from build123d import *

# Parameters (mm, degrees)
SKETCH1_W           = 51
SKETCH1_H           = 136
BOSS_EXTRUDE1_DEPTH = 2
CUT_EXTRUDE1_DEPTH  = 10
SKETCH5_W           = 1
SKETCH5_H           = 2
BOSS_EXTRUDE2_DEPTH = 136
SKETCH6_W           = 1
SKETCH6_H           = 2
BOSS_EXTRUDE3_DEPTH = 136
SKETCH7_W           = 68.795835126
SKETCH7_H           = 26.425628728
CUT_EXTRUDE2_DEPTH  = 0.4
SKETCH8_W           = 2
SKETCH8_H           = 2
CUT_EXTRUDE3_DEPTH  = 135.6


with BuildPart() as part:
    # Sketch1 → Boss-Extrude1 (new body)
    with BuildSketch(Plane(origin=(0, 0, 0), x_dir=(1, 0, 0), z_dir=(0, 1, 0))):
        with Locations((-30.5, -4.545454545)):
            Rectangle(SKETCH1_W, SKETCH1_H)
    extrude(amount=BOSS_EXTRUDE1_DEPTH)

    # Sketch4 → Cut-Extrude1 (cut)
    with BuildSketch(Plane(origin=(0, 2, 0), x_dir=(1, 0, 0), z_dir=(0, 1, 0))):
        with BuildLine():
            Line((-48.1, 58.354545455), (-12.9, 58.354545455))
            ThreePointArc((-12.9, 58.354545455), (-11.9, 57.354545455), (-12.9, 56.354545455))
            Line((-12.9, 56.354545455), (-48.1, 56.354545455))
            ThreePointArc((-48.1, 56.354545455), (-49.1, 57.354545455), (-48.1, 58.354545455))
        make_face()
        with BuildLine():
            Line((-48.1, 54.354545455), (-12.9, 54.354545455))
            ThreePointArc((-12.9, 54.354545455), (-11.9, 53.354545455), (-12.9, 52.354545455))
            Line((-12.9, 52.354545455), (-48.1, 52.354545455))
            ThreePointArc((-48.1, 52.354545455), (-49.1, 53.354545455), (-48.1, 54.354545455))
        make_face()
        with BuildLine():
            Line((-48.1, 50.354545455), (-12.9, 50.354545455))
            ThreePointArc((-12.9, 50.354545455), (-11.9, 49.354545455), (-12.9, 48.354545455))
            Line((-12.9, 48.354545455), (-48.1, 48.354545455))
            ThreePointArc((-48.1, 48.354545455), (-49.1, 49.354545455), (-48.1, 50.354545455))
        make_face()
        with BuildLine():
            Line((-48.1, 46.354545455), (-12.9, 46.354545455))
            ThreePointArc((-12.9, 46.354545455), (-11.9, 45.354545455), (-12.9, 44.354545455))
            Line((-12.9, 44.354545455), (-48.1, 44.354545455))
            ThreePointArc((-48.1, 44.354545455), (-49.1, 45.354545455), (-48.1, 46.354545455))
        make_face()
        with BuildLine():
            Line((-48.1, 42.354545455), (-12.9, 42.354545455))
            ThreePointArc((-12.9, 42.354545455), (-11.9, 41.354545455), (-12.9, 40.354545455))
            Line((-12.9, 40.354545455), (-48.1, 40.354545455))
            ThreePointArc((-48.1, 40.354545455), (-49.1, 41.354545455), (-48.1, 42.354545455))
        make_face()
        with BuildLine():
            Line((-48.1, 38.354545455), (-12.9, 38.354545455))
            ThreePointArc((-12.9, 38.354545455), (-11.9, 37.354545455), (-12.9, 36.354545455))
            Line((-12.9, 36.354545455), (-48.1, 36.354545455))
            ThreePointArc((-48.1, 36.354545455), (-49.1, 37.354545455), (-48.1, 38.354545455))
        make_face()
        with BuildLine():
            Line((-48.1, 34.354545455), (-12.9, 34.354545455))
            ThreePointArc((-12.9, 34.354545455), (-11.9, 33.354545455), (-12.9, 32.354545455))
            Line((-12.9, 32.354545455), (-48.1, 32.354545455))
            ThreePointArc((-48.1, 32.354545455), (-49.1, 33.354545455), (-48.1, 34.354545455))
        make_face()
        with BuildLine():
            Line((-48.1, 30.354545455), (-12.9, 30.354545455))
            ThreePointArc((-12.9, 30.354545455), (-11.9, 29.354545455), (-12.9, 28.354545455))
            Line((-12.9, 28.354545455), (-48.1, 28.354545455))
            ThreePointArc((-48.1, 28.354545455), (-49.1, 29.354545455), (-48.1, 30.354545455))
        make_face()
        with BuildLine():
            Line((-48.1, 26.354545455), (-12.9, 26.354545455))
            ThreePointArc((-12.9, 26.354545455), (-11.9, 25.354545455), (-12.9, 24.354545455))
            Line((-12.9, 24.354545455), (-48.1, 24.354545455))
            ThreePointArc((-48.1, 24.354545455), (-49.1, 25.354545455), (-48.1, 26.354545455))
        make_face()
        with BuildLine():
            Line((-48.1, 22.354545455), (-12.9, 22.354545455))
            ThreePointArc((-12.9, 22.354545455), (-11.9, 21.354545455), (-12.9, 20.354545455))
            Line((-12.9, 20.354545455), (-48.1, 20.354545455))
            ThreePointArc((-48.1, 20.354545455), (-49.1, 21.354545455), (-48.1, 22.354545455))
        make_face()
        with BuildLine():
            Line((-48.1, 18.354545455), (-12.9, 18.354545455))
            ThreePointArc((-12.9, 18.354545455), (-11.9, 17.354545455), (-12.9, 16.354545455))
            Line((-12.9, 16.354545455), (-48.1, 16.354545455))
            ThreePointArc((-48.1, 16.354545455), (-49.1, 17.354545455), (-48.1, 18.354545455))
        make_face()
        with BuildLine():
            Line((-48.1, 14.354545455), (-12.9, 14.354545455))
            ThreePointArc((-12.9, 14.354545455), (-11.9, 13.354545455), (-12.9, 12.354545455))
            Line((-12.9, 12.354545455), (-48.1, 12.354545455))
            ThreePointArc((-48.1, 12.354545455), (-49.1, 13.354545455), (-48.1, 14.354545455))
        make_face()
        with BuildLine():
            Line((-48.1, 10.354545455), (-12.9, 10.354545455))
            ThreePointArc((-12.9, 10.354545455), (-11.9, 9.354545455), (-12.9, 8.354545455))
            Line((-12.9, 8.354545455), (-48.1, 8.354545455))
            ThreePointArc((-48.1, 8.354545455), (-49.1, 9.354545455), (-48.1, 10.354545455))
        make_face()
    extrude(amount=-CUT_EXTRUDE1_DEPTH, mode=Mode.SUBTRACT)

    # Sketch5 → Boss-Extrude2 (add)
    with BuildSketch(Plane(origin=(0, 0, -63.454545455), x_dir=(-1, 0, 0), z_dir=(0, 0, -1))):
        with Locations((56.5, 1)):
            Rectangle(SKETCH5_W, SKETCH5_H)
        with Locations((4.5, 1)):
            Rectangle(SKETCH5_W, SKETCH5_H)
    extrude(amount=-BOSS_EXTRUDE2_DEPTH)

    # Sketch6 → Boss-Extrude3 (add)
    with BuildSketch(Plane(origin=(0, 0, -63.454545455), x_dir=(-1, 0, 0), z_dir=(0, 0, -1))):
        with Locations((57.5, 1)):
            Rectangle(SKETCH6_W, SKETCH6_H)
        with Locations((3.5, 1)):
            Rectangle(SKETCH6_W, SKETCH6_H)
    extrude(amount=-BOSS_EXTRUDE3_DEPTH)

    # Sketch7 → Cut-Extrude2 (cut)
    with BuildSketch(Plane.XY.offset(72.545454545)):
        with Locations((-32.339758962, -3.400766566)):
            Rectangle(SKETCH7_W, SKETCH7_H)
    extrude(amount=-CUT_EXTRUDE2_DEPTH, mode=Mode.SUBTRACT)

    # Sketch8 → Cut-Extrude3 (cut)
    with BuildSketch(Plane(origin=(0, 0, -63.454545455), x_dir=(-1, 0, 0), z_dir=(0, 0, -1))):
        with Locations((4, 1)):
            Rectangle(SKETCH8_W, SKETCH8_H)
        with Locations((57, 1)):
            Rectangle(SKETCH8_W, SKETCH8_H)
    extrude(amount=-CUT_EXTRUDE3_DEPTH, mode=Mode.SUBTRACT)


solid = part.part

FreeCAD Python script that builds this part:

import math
import FreeCAD as App
import Part
import Sketcher
from FreeCAD import Vector
Q = App.Units.Quantity


def add_polygon(sketch, points):
    """Adds a closed chain of lines whose ends are joined by coincident constraints."""
    first, n = sketch.GeometryCount, len(points)
    for a, b in zip(points, points[1:] + points[:1]):
        sketch.addGeometry(Part.LineSegment(App.Vector(*a, 0), App.Vector(*b, 0)), False)
    for i in range(n):
        sketch.addConstraint(Sketcher.Constraint("Coincident", first + i, 2, first + (i + 1) % n, 1))

doc = App.newDocument("Part")
body = doc.addObject("PartDesign::Body", "Body")

# Sketch on XZ plane
sketch1 = body.newObject("Sketcher::SketchObject", "Sketch")
sketch1.AttachmentSupport = (doc.getObject("XZ_Plane"), [""])
sketch1.MapMode = "FlatFace"
add_polygon(sketch1, [(-56, -63.454545), (-56, 72.545455), (-5, 72.545455), (-5, -63.454545)])  # lines 0-3
sketch1.addConstraint([
    Sketcher.Constraint("Vertical", 0),
    Sketcher.Constraint("Horizontal", 1),
    Sketcher.Constraint("Vertical", 2),
    Sketcher.Constraint("Horizontal", 3),
    Sketcher.Constraint("DistanceX", 1, 1, 1, 2, Q("51 mm")),
    Sketcher.Constraint("DistanceY", 0, 1, 0, 2, Q("136 mm")),
    Sketcher.Constraint("DistanceX", 0, 2, -1, 1, Q("56 mm")),
    Sketcher.Constraint("DistanceY", -1, 1, 0, 2, Q("72.545455 mm")),
])
pad1 = body.newObject("PartDesign::Pad", "Pad")
pad1.Profile = sketch1
pad1.Length = 2
pad1.Reversed = True

# Sketch on XZ plane
sketch2 = body.newObject("Sketcher::SketchObject", "Sketch001")
sketch2.AttachmentSupport = (doc.getObject("XZ_Plane"), [""])
sketch2.MapMode = "FlatFace"
sketch2.AttachmentOffset = App.Placement(Vector(0, 0, -2), App.Rotation())
sketch2.addGeometry([
    Part.LineSegment(Vector(-12.9, -58.354545, 0), Vector(-48.1, -58.354545, 0)),  # 0
    Part.ArcOfCircle(Part.Circle(Vector(-48.1, -57.354545, 0), Vector(0, 0, 1), 1), math.radians(90), math.radians(270)),  # 1
    Part.LineSegment(Vector(-48.1, -56.354545, 0), Vector(-12.9, -56.354545, 0)),  # 2
    Part.ArcOfCircle(Part.Circle(Vector(-12.9, -57.354545, 0), Vector(0, 0, 1), 1), math.radians(-90), math.radians(90)),  # 3
    Part.LineSegment(Vector(-12.9, -54.354545, 0), Vector(-48.1, -54.354545, 0)),  # 4
    Part.ArcOfCircle(Part.Circle(Vector(-48.1, -53.354545, 0), Vector(0, 0, 1), 1), math.radians(90), math.radians(270)),  # 5
    Part.LineSegment(Vector(-48.1, -52.354545, 0), Vector(-12.9, -52.354545, 0)),  # 6
    Part.ArcOfCircle(Part.Circle(Vector(-12.9, -53.354545, 0), Vector(0, 0, 1), 1), math.radians(-90), math.radians(90)),  # 7
    Part.LineSegment(Vector(-12.9, -50.354545, 0), Vector(-48.1, -50.354545, 0)),  # 8
    Part.ArcOfCircle(Part.Circle(Vector(-48.1, -49.354545, 0), Vector(0, 0, 1), 1), math.radians(90), math.radians(270)),  # 9
    Part.LineSegment(Vector(-48.1, -48.354545, 0), Vector(-12.9, -48.354545, 0)),  # 10
    Part.ArcOfCircle(Part.Circle(Vector(-12.9, -49.354545, 0), Vector(0, 0, 1), 1), math.radians(-90), math.radians(90)),  # 11
    Part.LineSegment(Vector(-12.9, -46.354545, 0), Vector(-48.1, -46.354545, 0)),  # 12
    Part.ArcOfCircle(Part.Circle(Vector(-48.1, -45.354545, 0), Vector(0, 0, 1), 1), math.radians(90), math.radians(270)),  # 13
    Part.LineSegment(Vector(-48.1, -44.354545, 0), Vector(-12.9, -44.354545, 0)),  # 14
    Part.ArcOfCircle(Part.Circle(Vector(-12.9, -45.354545, 0), Vector(0, 0, 1), 1), math.radians(-90), math.radians(90)),  # 15
    Part.LineSegment(Vector(-12.9, -42.354545, 0), Vector(-48.1, -42.354545, 0)),  # 16
    Part.ArcOfCircle(Part.Circle(Vector(-48.1, -41.354545, 0), Vector(0, 0, 1), 1), math.radians(90), math.radians(270)),  # 17
    Part.LineSegment(Vector(-48.1, -40.354545, 0), Vector(-12.9, -40.354545, 0)),  # 18
    Part.ArcOfCircle(Part.Circle(Vector(-12.9, -41.354545, 0), Vector(0, 0, 1), 1), math.radians(-90), math.radians(90)),  # 19
    Part.LineSegment(Vector(-12.9, -38.354545, 0), Vector(-48.1, -38.354545, 0)),  # 20
    Part.ArcOfCircle(Part.Circle(Vector(-48.1, -37.354545, 0), Vector(0, 0, 1), 1), math.radians(90), math.radians(270)),  # 21
    Part.LineSegment(Vector(-48.1, -36.354545, 0), Vector(-12.9, -36.354545, 0)),  # 22
    Part.ArcOfCircle(Part.Circle(Vector(-12.9, -37.354545, 0), Vector(0, 0, 1), 1), math.radians(-90), math.radians(90)),  # 23
    Part.LineSegment(Vector(-12.9, -34.354545, 0), Vector(-48.1, -34.354545, 0)),  # 24
    Part.ArcOfCircle(Part.Circle(Vector(-48.1, -33.354545, 0), Vector(0, 0, 1), 1), math.radians(90), math.radians(270)),  # 25
    Part.LineSegment(Vector(-48.1, -32.354545, 0), Vector(-12.9, -32.354545, 0)),  # 26
    Part.ArcOfCircle(Part.Circle(Vector(-12.9, -33.354545, 0), Vector(0, 0, 1), 1), math.radians(-90), math.radians(90)),  # 27
    Part.LineSegment(Vector(-12.9, -30.354545, 0), Vector(-48.1, -30.354545, 0)),  # 28
    Part.ArcOfCircle(Part.Circle(Vector(-48.1, -29.354545, 0), Vector(0, 0, 1), 1), math.radians(90), math.radians(270)),  # 29
    Part.LineSegment(Vector(-48.1, -28.354545, 0), Vector(-12.9, -28.354545, 0)),  # 30
    Part.ArcOfCircle(Part.Circle(Vector(-12.9, -29.354545, 0), Vector(0, 0, 1), 1), math.radians(-90), math.radians(90)),  # 31
    Part.LineSegment(Vector(-12.9, -26.354545, 0), Vector(-48.1, -26.354545, 0)),  # 32
    Part.ArcOfCircle(Part.Circle(Vector(-48.1, -25.354545, 0), Vector(0, 0, 1), 1), math.radians(90), math.radians(270)),  # 33
    Part.LineSegment(Vector(-48.1, -24.354545, 0), Vector(-12.9, -24.354545, 0)),  # 34
    Part.ArcOfCircle(Part.Circle(Vector(-12.9, -25.354545, 0), Vector(0, 0, 1), 1), math.radians(-90), math.radians(90)),  # 35
    Part.LineSegment(Vector(-12.9, -22.354545, 0), Vector(-48.1, -22.354545, 0)),  # 36
    Part.ArcOfCircle(Part.Circle(Vector(-48.1, -21.354545, 0), Vector(0, 0, 1), 1), math.radians(90), math.radians(270)),  # 37
    Part.LineSegment(Vector(-48.1, -20.354545, 0), Vector(-12.9, -20.354545, 0)),  # 38
    Part.ArcOfCircle(Part.Circle(Vector(-12.9, -21.354545, 0), Vector(0, 0, 1), 1), math.radians(-90), math.radians(90)),  # 39
    Part.LineSegment(Vector(-12.9, -18.354545, 0), Vector(-48.1, -18.354545, 0)),  # 40
    Part.ArcOfCircle(Part.Circle(Vector(-48.1, -17.354545, 0), Vector(0, 0, 1), 1), math.radians(90), math.radians(270)),  # 41
    Part.LineSegment(Vector(-48.1, -16.354545, 0), Vector(-12.9, -16.354545, 0)),  # 42
    Part.ArcOfCircle(Part.Circle(Vector(-12.9, -17.354545, 0), Vector(0, 0, 1), 1), math.radians(-90), math.radians(90)),  # 43
    Part.LineSegment(Vector(-12.9, -14.354545, 0), Vector(-48.1, -14.354545, 0)),  # 44
    Part.ArcOfCircle(Part.Circle(Vector(-48.1, -13.354545, 0), Vector(0, 0, 1), 1), math.radians(90), math.radians(270)),  # 45
    Part.LineSegment(Vector(-48.1, -12.354545, 0), Vector(-12.9, -12.354545, 0)),  # 46
    Part.ArcOfCircle(Part.Circle(Vector(-12.9, -13.354545, 0), Vector(0, 0, 1), 1), math.radians(-90), math.radians(90)),  # 47
    Part.LineSegment(Vector(-12.9, -10.354545, 0), Vector(-48.1, -10.354545, 0)),  # 48
    Part.ArcOfCircle(Part.Circle(Vector(-48.1, -9.354545, 0), Vector(0, 0, 1), 1), math.radians(90), math.radians(270)),  # 49
    Part.LineSegment(Vector(-48.1, -8.354545, 0), Vector(-12.9, -8.354545, 0)),  # 50
    Part.ArcOfCircle(Part.Circle(Vector(-12.9, -9.354545, 0), Vector(0, 0, 1), 1), math.radians(-90), math.radians(90)),  # 51
], False)
sketch2.addConstraint([
    Sketcher.Constraint("Tangent", 0, 2, 1, 2),
    Sketcher.Constraint("Tangent", 1, 1, 2, 1),
    Sketcher.Constraint("Tangent", 2, 2, 3, 2),
    Sketcher.Constraint("Tangent", 3, 1, 0, 1),
    Sketcher.Constraint("Tangent", 4, 2, 5, 2),
    Sketcher.Constraint("Tangent", 5, 1, 6, 1),
    Sketcher.Constraint("Tangent", 6, 2, 7, 2),
    Sketcher.Constraint("Tangent", 7, 1, 4, 1),
    Sketcher.Constraint("Tangent", 8, 2, 9, 2),
    Sketcher.Constraint("Tangent", 9, 1, 10, 1),
    Sketcher.Constraint("Tangent", 10, 2, 11, 2),
    Sketcher.Constraint("Tangent", 11, 1, 8, 1),
    Sketcher.Constraint("Tangent", 12, 2, 13, 2),
    Sketcher.Constraint("Tangent", 13, 1, 14, 1),
    Sketcher.Constraint("Tangent", 14, 2, 15, 2),
    Sketcher.Constraint("Tangent", 15, 1, 12, 1),
    Sketcher.Constraint("Tangent", 16, 2, 17, 2),
    Sketcher.Constraint("Tangent", 17, 1, 18, 1),
    Sketcher.Constraint("Tangent", 18, 2, 19, 2),
    Sketcher.Constraint("Tangent", 19, 1, 16, 1),
    Sketcher.Constraint("Tangent", 20, 2, 21, 2),
    Sketcher.Constraint("Tangent", 21, 1, 22, 1),
    Sketcher.Constraint("Tangent", 22, 2, 23, 2),
    Sketcher.Constraint("Tangent", 23, 1, 20, 1),
    Sketcher.Constraint("Tangent", 24, 2, 25, 2),
    Sketcher.Constraint("Tangent", 25, 1, 26, 1),
    Sketcher.Constraint("Tangent", 26, 2, 27, 2),
    Sketcher.Constraint("Tangent", 27, 1, 24, 1),
    Sketcher.Constraint("Tangent", 28, 2, 29, 2),
    Sketcher.Constraint("Tangent", 29, 1, 30, 1),
    Sketcher.Constraint("Tangent", 30, 2, 31, 2),
    Sketcher.Constraint("Tangent", 31, 1, 28, 1),
    Sketcher.Constraint("Tangent", 32, 2, 33, 2),
    Sketcher.Constraint("Tangent", 33, 1, 34, 1),
    Sketcher.Constraint("Tangent", 34, 2, 35, 2),
    Sketcher.Constraint("Tangent", 35, 1, 32, 1),
    Sketcher.Constraint("Tangent", 36, 2, 37, 2),
    Sketcher.Constraint("Tangent", 37, 1, 38, 1),
    Sketcher.Constraint("Tangent", 38, 2, 39, 2),
    Sketcher.Constraint("Tangent", 39, 1, 36, 1),
    Sketcher.Constraint("Tangent", 40, 2, 41, 2),
    Sketcher.Constraint("Tangent", 41, 1, 42, 1),
    Sketcher.Constraint("Tangent", 42, 2, 43, 2),
    Sketcher.Constraint("Tangent", 43, 1, 40, 1),
    Sketcher.Constraint("Tangent", 44, 2, 45, 2),
    Sketcher.Constraint("Tangent", 45, 1, 46, 1),
    Sketcher.Constraint("Tangent", 46, 2, 47, 2),
    Sketcher.Constraint("Tangent", 47, 1, 44, 1),
    Sketcher.Constraint("Tangent", 48, 2, 49, 2),
    Sketcher.Constraint("Tangent", 49, 1, 50, 1),
    Sketcher.Constraint("Tangent", 50, 2, 51, 2),
    Sketcher.Constraint("Tangent", 51, 1, 48, 1),
    Sketcher.Constraint("Horizontal", 0),
    Sketcher.Constraint("Horizontal", 2),
    Sketcher.Constraint("Horizontal", 4),
    Sketcher.Constraint("Horizontal", 6),
    Sketcher.Constraint("Horizontal", 8),
    Sketcher.Constraint("Horizontal", 10),
    Sketcher.Constraint("Horizontal", 12),
    Sketcher.Constraint("Horizontal", 14),
    Sketcher.Constraint("Horizontal", 16),
    Sketcher.Constraint("Horizontal", 18),
    Sketcher.Constraint("Horizontal", 20),
    Sketcher.Constraint("Horizontal", 22),
    Sketcher.Constraint("Horizontal", 24),
    Sketcher.Constraint("Horizontal", 26),
    Sketcher.Constraint("Horizontal", 28),
    Sketcher.Constraint("Horizontal", 30),
    Sketcher.Constraint("Horizontal", 32),
    Sketcher.Constraint("Horizontal", 34),
    Sketcher.Constraint("Horizontal", 36),
    Sketcher.Constraint("Horizontal", 38),
    Sketcher.Constraint("Horizontal", 40),
    Sketcher.Constraint("Horizontal", 42),
    Sketcher.Constraint("Horizontal", 44),
    Sketcher.Constraint("Horizontal", 46),
    Sketcher.Constraint("Horizontal", 48),
    Sketcher.Constraint("Horizontal", 50),
    Sketcher.Constraint("Equal", 3, 5),
    Sketcher.Constraint("Equal", 7, 9),
    Sketcher.Constraint("Equal", 11, 13),
    Sketcher.Constraint("Equal", 15, 17),
    Sketcher.Constraint("Equal", 19, 21),
    Sketcher.Constraint("Equal", 23, 25),
    Sketcher.Constraint("Equal", 27, 29),
    Sketcher.Constraint("Equal", 31, 33),
    Sketcher.Constraint("Equal", 35, 37),
    Sketcher.Constraint("Equal", 39, 41),
    Sketcher.Constraint("Equal", 43, 45),
    Sketcher.Constraint("Equal", 47, 49),
    Sketcher.Constraint("Vertical", 1, 3, 5, 3),
    Sketcher.Constraint("Vertical", 3, 3, 7, 3),
    Sketcher.Constraint("Vertical", 5, 3, 9, 3),
    Sketcher.Constraint("Vertical", 7, 3, 11, 3),
    Sketcher.Constraint("Vertical", 9, 3, 13, 3),
    Sketcher.Constraint("Vertical", 11, 3, 15, 3),
    Sketcher.Constraint("Vertical", 13, 3, 17, 3),
    Sketcher.Constraint("Vertical", 15, 3, 19, 3),
    Sketcher.Constraint("Vertical", 17, 3, 21, 3),
    Sketcher.Constraint("Vertical", 19, 3, 23, 3),
    Sketcher.Constraint("Vertical", 21, 3, 25, 3),
    Sketcher.Constraint("Vertical", 23, 3, 27, 3),
    Sketcher.Constraint("Vertical", 25, 3, 29, 3),
    Sketcher.Constraint("Vertical", 27, 3, 31, 3),
    Sketcher.Constraint("Vertical", 29, 3, 33, 3),
    Sketcher.Constraint("Vertical", 31, 3, 35, 3),
    Sketcher.Constraint("Vertical", 33, 3, 37, 3),
    Sketcher.Constraint("Vertical", 35, 3, 39, 3),
    Sketcher.Constraint("Vertical", 37, 3, 41, 3),
    Sketcher.Constraint("Vertical", 39, 3, 43, 3),
    Sketcher.Constraint("Vertical", 41, 3, 45, 3),
    Sketcher.Constraint("Vertical", 43, 3, 47, 3),
    Sketcher.Constraint("Vertical", 45, 3, 49, 3),
    Sketcher.Constraint("Vertical", 47, 3, 51, 3),
    Sketcher.Constraint("Radius", 1, Q("1 mm")),
    Sketcher.Constraint("DistanceX", 0, 2, 0, 1, Q("35.2 mm")),
    Sketcher.Constraint("DistanceX", 1, 3, -1, 1, Q("48.1 mm")),
    Sketcher.Constraint("DistanceY", 1, 3, -1, 1, Q("57.354545 mm")),
    Sketcher.Constraint("DistanceY", 5, 3, -1, 1, Q("53.354545 mm")),
    Sketcher.Constraint("DistanceY", 9, 3, -1, 1, Q("49.354545 mm")),
    Sketcher.Constraint("DistanceY", 13, 3, -1, 1, Q("45.354545 mm")),
    Sketcher.Constraint("DistanceY", 17, 3, -1, 1, Q("41.354545 mm")),
    Sketcher.Constraint("DistanceY", 21, 3, -1, 1, Q("37.354545 mm")),
    Sketcher.Constraint("DistanceY", 25, 3, -1, 1, Q("33.354545 mm")),
    Sketcher.Constraint("DistanceY", 29, 3, -1, 1, Q("29.354545 mm")),
    Sketcher.Constraint("DistanceY", 33, 3, -1, 1, Q("25.354545 mm")),
    Sketcher.Constraint("DistanceY", 37, 3, -1, 1, Q("21.354545 mm")),
    Sketcher.Constraint("DistanceY", 41, 3, -1, 1, Q("17.354545 mm")),
    Sketcher.Constraint("DistanceY", 45, 3, -1, 1, Q("13.354545 mm")),
    Sketcher.Constraint("DistanceY", 49, 3, -1, 1, Q("9.354545 mm")),
])
pocket1 = body.newObject("PartDesign::Pocket", "Pocket")
pocket1.Profile = sketch2
pocket1.Length = 10
pocket1.Reversed = True

# Sketch on XY plane
sketch3 = body.newObject("Sketcher::SketchObject", "Sketch002")
sketch3.AttachmentSupport = (doc.getObject("XY_Plane"), [""])
sketch3.MapMode = "FlatFace"
sketch3.AttachmentOffset = App.Placement(Vector(0, 0, -63.454545), App.Rotation())
add_polygon(sketch3, [(-56, 2), (-56, 0), (-57, 0), (-57, 2)])  # lines 0-3
add_polygon(sketch3, [(-4, 2), (-4, 0), (-5, 0), (-5, 2)])  # lines 4-7
sketch3.addConstraint([
    Sketcher.Constraint("Vertical", 0),
    Sketcher.Constraint("Horizontal", 1),
    Sketcher.Constraint("Vertical", 2),
    Sketcher.Constraint("Horizontal", 3),
    Sketcher.Constraint("Vertical", 4),
    Sketcher.Constraint("Horizontal", 5),
    Sketcher.Constraint("Vertical", 6),
    Sketcher.Constraint("Horizontal", 7),
    Sketcher.Constraint("PointOnObject", 0, 2, -1),
    Sketcher.Constraint("PointOnObject", 4, 2, -1),
    Sketcher.Constraint("Horizontal", 3, 2, 6, 2),
    Sketcher.Constraint("Equal", 3, 5),
    Sketcher.Constraint("DistanceX", 1, 2, 1, 1, Q("1 mm")),
    Sketcher.Constraint("DistanceY", 0, 2, 0, 1, Q("2 mm")),
    Sketcher.Constraint("DistanceX", 0, 2, -1, 1, Q("56 mm")),
    Sketcher.Constraint("DistanceX", 4, 2, -1, 1, Q("4 mm")),
])
pad2 = body.newObject("PartDesign::Pad", "Pad001")
pad2.Profile = sketch3
pad2.Length = 136

# Sketch on XY plane
sketch4 = body.newObject("Sketcher::SketchObject", "Sketch003")
sketch4.AttachmentSupport = (doc.getObject("XY_Plane"), [""])
sketch4.MapMode = "FlatFace"
sketch4.AttachmentOffset = App.Placement(Vector(0, 0, -63.454545), App.Rotation())
add_polygon(sketch4, [(-57, 2), (-57, 0), (-58, 0), (-58, 2)])  # lines 0-3
add_polygon(sketch4, [(-3, 2), (-3, 0), (-4, 0), (-4, 2)])  # lines 4-7
sketch4.addConstraint([
    Sketcher.Constraint("Vertical", 0),
    Sketcher.Constraint("Horizontal", 1),
    Sketcher.Constraint("Vertical", 2),
    Sketcher.Constraint("Horizontal", 3),
    Sketcher.Constraint("Vertical", 4),
    Sketcher.Constraint("Horizontal", 5),
    Sketcher.Constraint("Vertical", 6),
    Sketcher.Constraint("Horizontal", 7),
    Sketcher.Constraint("PointOnObject", 0, 2, -1),
    Sketcher.Constraint("PointOnObject", 4, 2, -1),
    Sketcher.Constraint("Horizontal", 3, 2, 6, 2),
    Sketcher.Constraint("Equal", 3, 5),
    Sketcher.Constraint("DistanceX", 1, 2, 1, 1, Q("1 mm")),
    Sketcher.Constraint("DistanceY", 0, 2, 0, 1, Q("2 mm")),
    Sketcher.Constraint("DistanceX", 0, 2, -1, 1, Q("57 mm")),
    Sketcher.Constraint("DistanceX", 4, 2, -1, 1, Q("3 mm")),
])
pad3 = body.newObject("PartDesign::Pad", "Pad002")
pad3.Profile = sketch4
pad3.Length = 136

# Sketch on XY plane
sketch5 = body.newObject("Sketcher::SketchObject", "Sketch004")
sketch5.AttachmentSupport = (doc.getObject("XY_Plane"), [""])
sketch5.MapMode = "FlatFace"
sketch5.AttachmentOffset = App.Placement(Vector(0, 0, 72.545455), App.Rotation())
add_polygon(sketch5, [(-66.737677, 9.812048), (-66.737677, -16.613581), (2.058159, -16.613581), (2.058159, 9.812048)])  # lines 0-3
sketch5.addConstraint([
    Sketcher.Constraint("Vertical", 0),
    Sketcher.Constraint("Horizontal", 1),
    Sketcher.Constraint("Vertical", 2),
    Sketcher.Constraint("Horizontal", 3),
    Sketcher.Constraint("DistanceY", 0, 2, 0, 1, Q("26.425629 mm")),
    Sketcher.Constraint("DistanceX", 1, 1, 1, 2, Q("68.795835 mm")),
    Sketcher.Constraint("DistanceY", 0, 2, -1, 1, Q("16.613581 mm")),
    Sketcher.Constraint("DistanceX", -1, 1, 1, 2, Q("2.058159 mm")),
])
pocket2 = body.newObject("PartDesign::Pocket", "Pocket001")
pocket2.Profile = sketch5
pocket2.Length = 0.4

# Sketch on XY plane
sketch6 = body.newObject("Sketcher::SketchObject", "Sketch005")
sketch6.AttachmentSupport = (doc.getObject("XY_Plane"), [""])
sketch6.MapMode = "FlatFace"
sketch6.AttachmentOffset = App.Placement(Vector(0, 0, -63.454545), App.Rotation())
add_polygon(sketch6, [(-3, 2), (-3, 0), (-5, 0), (-5, 2)])  # lines 0-3
add_polygon(sketch6, [(-56, 2), (-56, 0), (-58, 0), (-58, 2)])  # lines 4-7
sketch6.addConstraint([
    Sketcher.Constraint("Vertical", 0),
    Sketcher.Constraint("Horizontal", 1),
    Sketcher.Constraint("Vertical", 2),
    Sketcher.Constraint("Horizontal", 3),
    Sketcher.Constraint("Vertical", 4),
    Sketcher.Constraint("Horizontal", 5),
    Sketcher.Constraint("Vertical", 6),
    Sketcher.Constraint("Horizontal", 7),
    Sketcher.Constraint("PointOnObject", 0, 2, -1),
    Sketcher.Constraint("PointOnObject", 4, 2, -1),
    Sketcher.Constraint("Horizontal", 3, 2, 6, 2),
    Sketcher.Constraint("Equal", 3, 5),
    Sketcher.Constraint("Equal", 7, 0),
    Sketcher.Constraint("DistanceX", 1, 2, 1, 1, Q("2 mm")),
    Sketcher.Constraint("DistanceX", 0, 2, -1, 1, Q("3 mm")),
    Sketcher.Constraint("DistanceX", 4, 2, -1, 1, Q("56 mm")),
])
pocket3 = body.newObject("PartDesign::Pocket", "Pocket002")
pocket3.Profile = sketch6
pocket3.Length = 135.6
pocket3.Reversed = True

doc.recompute()
